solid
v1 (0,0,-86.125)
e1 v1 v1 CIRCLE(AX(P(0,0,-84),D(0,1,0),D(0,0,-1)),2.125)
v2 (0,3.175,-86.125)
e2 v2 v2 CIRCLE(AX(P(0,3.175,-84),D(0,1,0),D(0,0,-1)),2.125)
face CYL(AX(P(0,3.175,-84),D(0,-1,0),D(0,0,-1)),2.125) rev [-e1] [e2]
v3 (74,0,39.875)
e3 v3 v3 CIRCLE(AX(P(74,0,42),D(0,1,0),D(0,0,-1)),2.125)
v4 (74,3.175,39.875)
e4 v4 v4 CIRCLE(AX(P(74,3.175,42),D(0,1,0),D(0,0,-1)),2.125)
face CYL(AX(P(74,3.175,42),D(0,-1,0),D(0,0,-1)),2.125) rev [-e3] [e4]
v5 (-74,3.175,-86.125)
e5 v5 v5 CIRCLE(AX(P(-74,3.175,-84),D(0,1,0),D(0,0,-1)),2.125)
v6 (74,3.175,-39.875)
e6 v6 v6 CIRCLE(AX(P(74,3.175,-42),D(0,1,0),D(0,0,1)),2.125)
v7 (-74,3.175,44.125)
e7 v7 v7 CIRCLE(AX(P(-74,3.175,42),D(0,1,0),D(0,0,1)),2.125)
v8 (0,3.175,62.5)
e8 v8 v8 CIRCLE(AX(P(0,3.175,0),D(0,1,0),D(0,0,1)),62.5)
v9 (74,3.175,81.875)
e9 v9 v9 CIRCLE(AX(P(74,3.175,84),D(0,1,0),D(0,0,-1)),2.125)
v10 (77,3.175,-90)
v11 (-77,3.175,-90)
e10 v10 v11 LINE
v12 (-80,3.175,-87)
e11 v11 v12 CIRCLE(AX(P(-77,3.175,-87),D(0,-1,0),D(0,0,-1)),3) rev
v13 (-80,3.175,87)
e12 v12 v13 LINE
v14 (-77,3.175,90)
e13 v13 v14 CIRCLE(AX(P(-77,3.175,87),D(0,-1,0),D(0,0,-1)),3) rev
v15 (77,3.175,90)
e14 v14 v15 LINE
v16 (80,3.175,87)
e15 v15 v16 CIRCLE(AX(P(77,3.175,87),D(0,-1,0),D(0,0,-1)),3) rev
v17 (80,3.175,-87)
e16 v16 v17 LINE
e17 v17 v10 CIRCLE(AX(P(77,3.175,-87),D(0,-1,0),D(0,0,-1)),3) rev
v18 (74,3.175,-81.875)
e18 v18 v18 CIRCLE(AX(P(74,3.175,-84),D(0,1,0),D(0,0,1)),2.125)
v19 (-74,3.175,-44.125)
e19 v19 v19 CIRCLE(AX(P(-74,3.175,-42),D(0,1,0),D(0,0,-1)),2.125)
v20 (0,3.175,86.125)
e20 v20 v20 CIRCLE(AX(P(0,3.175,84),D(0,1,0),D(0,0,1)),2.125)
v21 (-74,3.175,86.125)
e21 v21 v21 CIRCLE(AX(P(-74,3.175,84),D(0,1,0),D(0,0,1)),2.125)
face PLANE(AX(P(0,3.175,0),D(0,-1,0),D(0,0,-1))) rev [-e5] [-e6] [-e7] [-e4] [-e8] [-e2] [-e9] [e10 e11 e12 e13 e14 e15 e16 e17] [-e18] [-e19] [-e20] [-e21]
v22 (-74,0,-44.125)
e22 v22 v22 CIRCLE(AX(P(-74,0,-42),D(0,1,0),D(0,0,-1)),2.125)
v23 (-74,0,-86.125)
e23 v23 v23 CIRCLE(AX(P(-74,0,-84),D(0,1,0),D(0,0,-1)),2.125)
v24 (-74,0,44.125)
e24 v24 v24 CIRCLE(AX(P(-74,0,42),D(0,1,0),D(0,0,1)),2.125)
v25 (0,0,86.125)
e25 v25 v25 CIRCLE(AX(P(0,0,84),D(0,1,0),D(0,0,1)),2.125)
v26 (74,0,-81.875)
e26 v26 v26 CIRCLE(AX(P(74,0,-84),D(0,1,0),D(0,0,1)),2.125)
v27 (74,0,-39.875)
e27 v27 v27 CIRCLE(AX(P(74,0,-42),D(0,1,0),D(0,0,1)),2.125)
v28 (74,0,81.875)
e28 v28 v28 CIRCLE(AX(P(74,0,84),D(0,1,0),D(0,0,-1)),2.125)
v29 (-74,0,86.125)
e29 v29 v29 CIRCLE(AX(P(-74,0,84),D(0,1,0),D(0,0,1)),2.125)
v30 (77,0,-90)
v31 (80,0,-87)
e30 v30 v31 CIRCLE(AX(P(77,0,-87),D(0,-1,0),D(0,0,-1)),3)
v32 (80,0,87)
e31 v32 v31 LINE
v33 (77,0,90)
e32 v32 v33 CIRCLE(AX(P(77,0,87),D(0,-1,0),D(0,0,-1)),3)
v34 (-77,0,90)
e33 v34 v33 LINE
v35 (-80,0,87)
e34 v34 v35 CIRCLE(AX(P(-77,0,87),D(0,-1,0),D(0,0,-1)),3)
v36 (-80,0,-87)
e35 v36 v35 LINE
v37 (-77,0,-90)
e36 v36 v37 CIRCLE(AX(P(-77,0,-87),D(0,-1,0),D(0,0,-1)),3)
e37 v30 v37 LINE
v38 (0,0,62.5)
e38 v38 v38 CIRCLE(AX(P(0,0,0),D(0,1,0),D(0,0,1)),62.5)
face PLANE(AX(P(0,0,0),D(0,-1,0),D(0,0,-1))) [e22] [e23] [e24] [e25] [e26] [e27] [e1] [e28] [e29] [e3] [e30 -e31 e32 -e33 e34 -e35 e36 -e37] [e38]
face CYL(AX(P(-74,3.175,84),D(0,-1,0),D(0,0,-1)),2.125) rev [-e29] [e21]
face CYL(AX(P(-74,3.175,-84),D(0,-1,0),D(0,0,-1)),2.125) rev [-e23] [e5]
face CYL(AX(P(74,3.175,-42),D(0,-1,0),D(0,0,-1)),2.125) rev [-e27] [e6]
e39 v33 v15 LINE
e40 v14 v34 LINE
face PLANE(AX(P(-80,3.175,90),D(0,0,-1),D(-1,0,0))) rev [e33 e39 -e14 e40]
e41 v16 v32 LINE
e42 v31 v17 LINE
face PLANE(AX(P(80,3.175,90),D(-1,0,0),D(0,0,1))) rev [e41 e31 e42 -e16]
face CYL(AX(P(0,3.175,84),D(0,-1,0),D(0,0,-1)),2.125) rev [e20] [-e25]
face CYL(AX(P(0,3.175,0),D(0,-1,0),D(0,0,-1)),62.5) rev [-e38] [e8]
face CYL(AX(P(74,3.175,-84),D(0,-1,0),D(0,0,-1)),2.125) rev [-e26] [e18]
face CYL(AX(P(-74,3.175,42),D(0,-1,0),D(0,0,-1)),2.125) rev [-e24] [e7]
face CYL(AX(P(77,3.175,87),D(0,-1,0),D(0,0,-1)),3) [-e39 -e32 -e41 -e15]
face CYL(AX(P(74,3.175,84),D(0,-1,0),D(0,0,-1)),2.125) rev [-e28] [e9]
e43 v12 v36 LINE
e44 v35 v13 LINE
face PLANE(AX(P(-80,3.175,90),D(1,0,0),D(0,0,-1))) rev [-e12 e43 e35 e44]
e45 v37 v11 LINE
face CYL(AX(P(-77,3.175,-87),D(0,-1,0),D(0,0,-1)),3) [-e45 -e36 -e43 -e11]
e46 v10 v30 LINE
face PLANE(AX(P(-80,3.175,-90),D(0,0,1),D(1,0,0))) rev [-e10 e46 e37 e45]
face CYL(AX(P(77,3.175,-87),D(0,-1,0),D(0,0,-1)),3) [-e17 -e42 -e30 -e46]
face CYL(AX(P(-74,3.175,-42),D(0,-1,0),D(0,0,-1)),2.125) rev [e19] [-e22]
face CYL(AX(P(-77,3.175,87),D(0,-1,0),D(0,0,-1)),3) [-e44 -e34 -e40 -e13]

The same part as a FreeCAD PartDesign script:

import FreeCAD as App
import Part
import Sketcher

V = App.Vector
Q = App.Units.Quantity


def edges_at(feature, points):
    """Names of the edges that pass closest to the given points."""
    edges = feature.Shape.Edges
    near = lambda p: min(range(len(edges)), key=lambda i: edges[i].distToShape(Part.Vertex(*p))[0])
    return sorted({f"Edge{near(p) + 1}" for p in points})


def add_polygon(sketch, points):
    """Adds a closed chain of lines whose ends are joined by coincident constraints."""
    first, n = sketch.GeometryCount, len(points)
    for a, b in zip(points, points[1:] + points[:1]):
        sketch.addGeometry(Part.LineSegment(App.Vector(*a, 0), App.Vector(*b, 0)), False)
    for i in range(n):
        sketch.addConstraint(Sketcher.Constraint("Coincident", first + i, 2, first + (i + 1) % n, 1))

doc = App.newDocument("Part")
params = doc.addObject("Spreadsheet::Sheet", "Params")
for row, (alias, value) in enumerate([
    ("sketch1_diameter", "125 mm"),
    ("sketch1_diameter2", "4.25 mm"),
    ("sketch1_width", "160 mm"),
    ("sketch1_height", "180 mm"),
    ("pad1_length", "3.175 mm"),
    ("fillet_radius", "3 mm"),
], start=1):
    params.set(f"A{row}", alias)
    params.set(f"B{row}", "=" + value)
    params.setAlias(f"B{row}", alias)

body = doc.addObject("PartDesign::Body", "Body")

# Sketch on XZ plane
sketch1 = body.newObject("Sketcher::SketchObject", "Sketch")
sketch1.AttachmentSupport = (doc.getObject("XZ_Plane"), [""])
sketch1.MapMode = "FlatFace"
add_polygon(sketch1, [(-80, -90), (-80, 90), (80, 90), (80, -90)])  # lines 0-3
sketch1.addGeometry(Part.Circle(V(-74, 84, 0), V(0, 0, 1), 2.1), False)  # 4
sketch1.addGeometry(Part.Circle(V(-74, 42, 0), V(0, 0, 1), 2.1), False)  # 5
sketch1.addGeometry(Part.Circle(V(0, 84, 0), V(0, 0, 1), 2.1), False)  # 6
sketch1.addGeometry(Part.Circle(V(74, 84, 0), V(0, 0, 1), 2.1), False)  # 7
sketch1.addGeometry(Part.Circle(V(74, 42, 0), V(0, 0, 1), 2.1), False)  # 8
sketch1.addGeometry(Part.Circle(V(-74, -42, 0), V(0, 0, 1), 2.1), False)  # 9
sketch1.addGeometry(Part.Circle(V(-74, -84, 0), V(0, 0, 1), 2.1), False)  # 10
sketch1.addGeometry(Part.Circle(V(0, 0, 0), V(0, 0, 1), 62.5), False)  # 11
sketch1.addGeometry(Part.Circle(V(74, -42, 0), V(0, 0, 1), 2.1), False)  # 12
sketch1.addGeometry(Part.Circle(V(0, -84, 0), V(0, 0, 1), 2.1), False)  # 13
sketch1.addGeometry(Part.Circle(V(74, -84, 0), V(0, 0, 1), 2.1), False)  # 14
sketch1.addConstraint(Sketcher.Constraint("Vertical", 0))
sketch1.addConstraint(Sketcher.Constraint("Horizontal", 1))
sketch1.addConstraint(Sketcher.Constraint("Vertical", 2))
sketch1.addConstraint(Sketcher.Constraint("Horizontal", 3))
sketch1.addConstraint(Sketcher.Constraint("Coincident", 11, 3, -1, 1))
sketch1.addConstraint(Sketcher.Constraint("Equal", 4, 5))
sketch1.addConstraint(Sketcher.Constraint("Equal", 5, 6))
sketch1.addConstraint(Sketcher.Constraint("Equal", 6, 7))
sketch1.addConstraint(Sketcher.Constraint("Equal", 7, 8))
sketch1.addConstraint(Sketcher.Constraint("Equal", 8, 9))
sketch1.addConstraint(Sketcher.Constraint("Equal", 9, 10))
sketch1.addConstraint(Sketcher.Constraint("Equal", 10, 12))
sketch1.addConstraint(Sketcher.Constraint("Equal", 12, 13))
sketch1.addConstraint(Sketcher.Constraint("Equal", 13, 14))
sketch1.addConstraint(Sketcher.Constraint("Symmetric", 8, 3, 9, 3, -1, 1))
sketch1.addConstraint(Sketcher.Constraint("Symmetric", 7, 3, 10, 3, -1, 1))
sketch1.addConstraint(Sketcher.Constraint("Symmetric", 5, 3, 12, 3, -1, 1))
sketch1.addConstraint(Sketcher.Constraint("Symmetric", 6, 3, 13, 3, -1, 1))
sketch1.addConstraint(Sketcher.Constraint("Symmetric", 4, 3, 14, 3, -1, 1))
sketch1.addConstraint(Sketcher.Constraint("Symmetric", 0, 2, 2, 2, -1, 1))
sketch1.addConstraint(Sketcher.Constraint("Symmetric", 4, 3, 7, 3, -2))
sketch1.addConstraint(Sketcher.Constraint("Symmetric", 5, 3, 8, 3, -2))
sketch1.addConstraint(Sketcher.Constraint("PointOnObject", 6, 3, -2))
sketch1.addConstraint(Sketcher.Constraint("Horizontal", 4, 3, 6, 3))
sketch1.addConstraint(Sketcher.Constraint("Vertical", 4, 3, 5, 3))
sketch1.addConstraint(Sketcher.Constraint("Diameter", 11, Q("125 mm")))
sketch1.addConstraint(Sketcher.Constraint("Diameter", 4, Q("4.25 mm")))
sketch1.addConstraint(Sketcher.Constraint("DistanceX", 1, 1, 1, 2, Q("160 mm")))
sketch1.addConstraint(Sketcher.Constraint("DistanceY", 0, 1, 0, 2, Q("180 mm")))
sketch1.addConstraint(Sketcher.Constraint("DistanceX", 4, 3, -1, 1, Q("74 mm")))
sketch1.addConstraint(Sketcher.Constraint("DistanceY", -1, 1, 4, 3, Q("84 mm")))
sketch1.addConstraint(Sketcher.Constraint("DistanceY", -1, 1, 5, 3, Q("42 mm")))
sketch1.setExpression("Constraints[29]", "Params.sketch1_diameter")
sketch1.setExpression("Constraints[30]", "Params.sketch1_diameter2")
sketch1.setExpression("Constraints[31]", "Params.sketch1_width")
sketch1.setExpression("Constraints[32]", "Params.sketch1_height")
pad1 = body.newObject("PartDesign::Pad", "Pad")
pad1.Profile = sketch1
pad1.setExpression("Length", "Params.pad1_length")
pad1.Reversed = True
doc.recompute()

fillet = body.newObject("PartDesign::Fillet", "Fillet")
fillet.Base = (pad1, edges_at(pad1, [
    (80, 1.587, 90),
    (-80, 1.587, 90),
    (-80, 1.587, -90),
    (80, 1.587, -90),
]))
fillet.setExpression("Radius", "Params.fillet_radius")

doc.recompute()
